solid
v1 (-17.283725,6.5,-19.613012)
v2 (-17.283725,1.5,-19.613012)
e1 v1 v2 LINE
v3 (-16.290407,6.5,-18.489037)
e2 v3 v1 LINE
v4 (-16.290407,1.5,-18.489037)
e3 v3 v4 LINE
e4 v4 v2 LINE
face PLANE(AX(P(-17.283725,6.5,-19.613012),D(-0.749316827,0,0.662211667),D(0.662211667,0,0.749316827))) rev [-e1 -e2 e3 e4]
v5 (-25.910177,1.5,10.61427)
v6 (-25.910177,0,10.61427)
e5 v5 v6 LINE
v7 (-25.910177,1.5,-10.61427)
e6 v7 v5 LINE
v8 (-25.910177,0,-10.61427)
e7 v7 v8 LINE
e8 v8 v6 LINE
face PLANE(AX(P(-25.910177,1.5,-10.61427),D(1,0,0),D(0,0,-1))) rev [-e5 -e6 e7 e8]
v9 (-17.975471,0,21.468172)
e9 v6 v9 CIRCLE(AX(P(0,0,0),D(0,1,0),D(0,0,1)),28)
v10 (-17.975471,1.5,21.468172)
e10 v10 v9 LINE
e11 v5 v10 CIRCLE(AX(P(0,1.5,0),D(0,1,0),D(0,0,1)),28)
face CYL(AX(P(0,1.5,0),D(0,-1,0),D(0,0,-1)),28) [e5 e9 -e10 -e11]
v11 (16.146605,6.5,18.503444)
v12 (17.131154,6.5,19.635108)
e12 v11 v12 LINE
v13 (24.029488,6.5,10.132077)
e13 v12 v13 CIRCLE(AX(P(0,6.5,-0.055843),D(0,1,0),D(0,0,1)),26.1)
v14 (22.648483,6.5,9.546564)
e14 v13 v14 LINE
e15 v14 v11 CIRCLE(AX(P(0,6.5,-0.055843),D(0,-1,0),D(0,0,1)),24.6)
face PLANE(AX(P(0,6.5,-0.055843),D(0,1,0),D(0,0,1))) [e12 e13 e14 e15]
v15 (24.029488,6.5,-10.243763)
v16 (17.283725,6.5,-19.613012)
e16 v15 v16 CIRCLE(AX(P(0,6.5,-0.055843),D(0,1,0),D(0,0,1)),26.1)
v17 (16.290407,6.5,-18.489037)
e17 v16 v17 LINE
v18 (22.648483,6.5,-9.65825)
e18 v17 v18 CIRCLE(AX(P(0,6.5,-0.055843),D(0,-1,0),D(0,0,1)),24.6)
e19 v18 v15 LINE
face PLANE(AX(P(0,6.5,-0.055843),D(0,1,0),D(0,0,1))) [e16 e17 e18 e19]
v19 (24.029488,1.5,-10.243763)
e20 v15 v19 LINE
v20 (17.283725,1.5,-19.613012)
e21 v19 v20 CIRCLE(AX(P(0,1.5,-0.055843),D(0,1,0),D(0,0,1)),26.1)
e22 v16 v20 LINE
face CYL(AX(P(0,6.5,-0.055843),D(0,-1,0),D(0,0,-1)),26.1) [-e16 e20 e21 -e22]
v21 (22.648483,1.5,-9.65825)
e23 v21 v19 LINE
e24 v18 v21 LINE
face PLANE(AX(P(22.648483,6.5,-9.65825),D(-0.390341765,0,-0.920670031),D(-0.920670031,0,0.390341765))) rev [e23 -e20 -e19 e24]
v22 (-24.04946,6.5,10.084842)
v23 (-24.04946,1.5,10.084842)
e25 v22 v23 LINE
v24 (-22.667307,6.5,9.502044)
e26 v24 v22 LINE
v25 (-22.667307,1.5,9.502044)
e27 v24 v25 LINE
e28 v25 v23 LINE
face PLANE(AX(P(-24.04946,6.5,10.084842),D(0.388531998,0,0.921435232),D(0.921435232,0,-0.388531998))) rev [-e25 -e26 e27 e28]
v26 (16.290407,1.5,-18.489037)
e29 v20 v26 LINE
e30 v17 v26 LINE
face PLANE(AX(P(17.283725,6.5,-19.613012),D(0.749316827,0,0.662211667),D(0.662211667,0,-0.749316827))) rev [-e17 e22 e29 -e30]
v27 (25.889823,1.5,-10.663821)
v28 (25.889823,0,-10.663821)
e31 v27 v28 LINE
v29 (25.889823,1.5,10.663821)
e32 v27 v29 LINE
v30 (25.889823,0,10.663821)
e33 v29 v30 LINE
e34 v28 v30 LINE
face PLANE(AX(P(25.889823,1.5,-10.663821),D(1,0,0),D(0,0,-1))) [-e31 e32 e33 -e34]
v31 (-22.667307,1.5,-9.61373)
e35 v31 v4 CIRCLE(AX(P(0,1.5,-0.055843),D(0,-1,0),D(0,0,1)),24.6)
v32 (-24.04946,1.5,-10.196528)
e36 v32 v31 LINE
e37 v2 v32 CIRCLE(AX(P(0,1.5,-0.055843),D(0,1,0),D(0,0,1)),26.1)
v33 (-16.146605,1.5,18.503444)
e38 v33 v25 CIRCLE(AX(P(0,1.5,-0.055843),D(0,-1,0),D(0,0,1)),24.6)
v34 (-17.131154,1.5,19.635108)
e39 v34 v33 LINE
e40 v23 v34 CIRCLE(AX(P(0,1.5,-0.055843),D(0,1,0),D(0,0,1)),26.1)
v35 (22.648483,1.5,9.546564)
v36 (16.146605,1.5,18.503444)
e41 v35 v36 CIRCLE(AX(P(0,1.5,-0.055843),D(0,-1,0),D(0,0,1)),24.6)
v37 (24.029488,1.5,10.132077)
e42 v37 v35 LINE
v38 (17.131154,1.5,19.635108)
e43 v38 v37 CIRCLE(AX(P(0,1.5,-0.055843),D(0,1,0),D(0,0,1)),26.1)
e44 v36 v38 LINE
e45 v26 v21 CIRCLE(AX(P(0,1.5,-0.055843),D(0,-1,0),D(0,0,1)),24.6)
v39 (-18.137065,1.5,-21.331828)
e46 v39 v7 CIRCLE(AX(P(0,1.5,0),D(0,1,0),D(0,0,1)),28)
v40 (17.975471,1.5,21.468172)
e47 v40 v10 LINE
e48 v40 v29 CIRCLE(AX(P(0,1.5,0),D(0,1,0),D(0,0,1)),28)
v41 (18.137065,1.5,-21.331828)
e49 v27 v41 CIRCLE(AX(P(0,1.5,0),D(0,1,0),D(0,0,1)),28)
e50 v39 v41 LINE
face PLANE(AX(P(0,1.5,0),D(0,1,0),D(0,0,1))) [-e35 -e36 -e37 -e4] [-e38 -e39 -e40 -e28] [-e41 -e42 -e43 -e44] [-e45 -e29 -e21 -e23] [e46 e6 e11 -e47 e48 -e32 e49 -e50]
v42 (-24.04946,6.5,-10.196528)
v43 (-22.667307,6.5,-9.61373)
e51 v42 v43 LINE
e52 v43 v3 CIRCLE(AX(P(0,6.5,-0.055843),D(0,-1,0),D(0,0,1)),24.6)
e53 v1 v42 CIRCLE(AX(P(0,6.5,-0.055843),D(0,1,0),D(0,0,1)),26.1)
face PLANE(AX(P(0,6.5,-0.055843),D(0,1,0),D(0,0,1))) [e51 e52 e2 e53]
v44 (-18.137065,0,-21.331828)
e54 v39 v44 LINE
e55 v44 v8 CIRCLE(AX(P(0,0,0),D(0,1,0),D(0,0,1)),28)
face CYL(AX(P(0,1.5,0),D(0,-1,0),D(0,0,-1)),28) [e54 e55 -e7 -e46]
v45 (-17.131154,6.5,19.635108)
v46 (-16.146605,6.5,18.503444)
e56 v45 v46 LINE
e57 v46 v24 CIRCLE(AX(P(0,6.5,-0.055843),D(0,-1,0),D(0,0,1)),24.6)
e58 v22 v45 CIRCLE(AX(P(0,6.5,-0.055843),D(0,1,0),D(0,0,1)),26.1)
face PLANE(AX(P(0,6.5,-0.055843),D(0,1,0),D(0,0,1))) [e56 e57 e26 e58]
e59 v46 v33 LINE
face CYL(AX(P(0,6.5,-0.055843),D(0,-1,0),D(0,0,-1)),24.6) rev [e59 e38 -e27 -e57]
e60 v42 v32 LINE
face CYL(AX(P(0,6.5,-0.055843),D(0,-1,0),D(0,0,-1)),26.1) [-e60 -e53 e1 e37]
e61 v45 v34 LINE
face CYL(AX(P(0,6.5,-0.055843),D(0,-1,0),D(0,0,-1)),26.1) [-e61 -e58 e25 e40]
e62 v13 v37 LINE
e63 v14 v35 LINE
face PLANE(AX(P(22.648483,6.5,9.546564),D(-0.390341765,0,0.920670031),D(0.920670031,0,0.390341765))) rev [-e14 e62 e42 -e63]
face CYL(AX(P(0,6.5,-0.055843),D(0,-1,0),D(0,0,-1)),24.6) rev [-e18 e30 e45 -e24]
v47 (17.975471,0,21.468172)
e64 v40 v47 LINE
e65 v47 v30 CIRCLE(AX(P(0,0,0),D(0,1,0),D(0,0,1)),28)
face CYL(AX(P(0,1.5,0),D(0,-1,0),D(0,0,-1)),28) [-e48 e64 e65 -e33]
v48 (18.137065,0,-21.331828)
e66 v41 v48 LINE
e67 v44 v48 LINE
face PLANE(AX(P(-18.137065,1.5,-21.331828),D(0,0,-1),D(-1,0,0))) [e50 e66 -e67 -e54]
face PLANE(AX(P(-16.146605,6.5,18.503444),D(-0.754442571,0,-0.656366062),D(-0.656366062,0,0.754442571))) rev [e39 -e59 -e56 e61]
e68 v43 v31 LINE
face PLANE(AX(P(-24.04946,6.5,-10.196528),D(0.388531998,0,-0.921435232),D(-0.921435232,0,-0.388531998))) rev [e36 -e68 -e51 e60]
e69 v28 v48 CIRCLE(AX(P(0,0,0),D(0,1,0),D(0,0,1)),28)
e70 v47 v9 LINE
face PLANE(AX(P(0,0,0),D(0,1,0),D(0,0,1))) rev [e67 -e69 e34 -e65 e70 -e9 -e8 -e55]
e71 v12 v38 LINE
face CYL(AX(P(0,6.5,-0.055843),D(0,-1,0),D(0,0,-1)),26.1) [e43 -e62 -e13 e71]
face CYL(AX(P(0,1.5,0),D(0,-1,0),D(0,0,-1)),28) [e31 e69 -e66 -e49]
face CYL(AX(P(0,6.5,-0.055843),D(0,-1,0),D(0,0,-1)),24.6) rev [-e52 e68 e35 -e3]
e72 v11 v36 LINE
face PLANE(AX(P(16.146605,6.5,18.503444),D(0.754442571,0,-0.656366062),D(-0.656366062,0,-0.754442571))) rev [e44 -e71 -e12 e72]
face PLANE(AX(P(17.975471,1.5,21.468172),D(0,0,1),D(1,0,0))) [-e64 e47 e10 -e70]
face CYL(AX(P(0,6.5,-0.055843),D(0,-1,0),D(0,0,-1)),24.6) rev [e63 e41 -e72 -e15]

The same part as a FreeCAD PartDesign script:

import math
import FreeCAD as App
import Part
import Sketcher
from FreeCAD import Vector

doc = App.newDocument("Part")
params = doc.addObject("Spreadsheet::Sheet", "Params")
for row, (alias, value) in enumerate([
    ("sketch1_radius", "28 mm"),
    ("pad1_length", "1.5 mm"),
    ("sketch2_radius", "26.1 mm"),
    ("sketch2_radius2", "24.6 mm"),
    ("pad2_length", "5 mm"),
], start=1):
    params.set(f"A{row}", alias)
    params.set(f"B{row}", "=" + value)
    params.setAlias(f"B{row}", alias)

body = doc.addObject("PartDesign::Body", "Body")

# Sketch on XZ plane
sketch1 = body.newObject("Sketcher::SketchObject", "Sketch")
sketch1.AttachmentSupport = (doc.getObject("XZ_Plane"), [""])
sketch1.MapMode = "FlatFace"
sketch1.addGeometry(Part.LineSegment(Vector(-25.910177, -10.61427, 0), Vector(-25.910177, 10.61427, 0)), False)
sketch1.addGeometry(Part.ArcOfCircle(Part.Circle(Vector(0, 0, 0), Vector(0, 0, 1), 28), math.radians(129.939706), math.radians(157.723227)), False)
sketch1.addGeometry(Part.LineSegment(Vector(-17.975471, 21.468172, 0), Vector(17.975471, 21.468172, 0)), False)
sketch1.addGeometry(Part.ArcOfCircle(Part.Circle(Vector(0, 0, 0), Vector(0, 0, 1), 28), math.radians(22.38639), math.radians(50.060294)), False)
sketch1.addGeometry(Part.LineSegment(Vector(25.889823, 10.663821, 0), Vector(25.889823, -10.663821, 0)), False)
sketch1.addGeometry(Part.ArcOfCircle(Part.Circle(Vector(0, 0, 0), Vector(0, 0, 1), 28), math.radians(-49.62765), math.radians(-22.38639)), False)
sketch1.addGeometry(Part.LineSegment(Vector(18.137065, -21.331828, 0), Vector(-18.137065, -21.331828, 0)), False)
sketch1.addGeometry(Part.ArcOfCircle(Part.Circle(Vector(0, 0, 0), Vector(0, 0, 1), 28), math.radians(-157.723227), math.radians(-130.37235)), False)
sketch1.addConstraint(Sketcher.Constraint("Coincident", 0, 2, 1, 2))
sketch1.addConstraint(Sketcher.Constraint("Coincident", 1, 1, 2, 1))
sketch1.addConstraint(Sketcher.Constraint("Coincident", 2, 2, 3, 2))
sketch1.addConstraint(Sketcher.Constraint("Coincident", 3, 1, 4, 1))
sketch1.addConstraint(Sketcher.Constraint("Coincident", 4, 2, 5, 2))
sketch1.addConstraint(Sketcher.Constraint("Coincident", 5, 1, 6, 1))
sketch1.addConstraint(Sketcher.Constraint("Coincident", 6, 2, 7, 2))
sketch1.addConstraint(Sketcher.Constraint("Coincident", 7, 1, 0, 1))
sketch1.addConstraint(Sketcher.Constraint("Vertical", 0))
sketch1.addConstraint(Sketcher.Constraint("Horizontal", 2))
sketch1.addConstraint(Sketcher.Constraint("Vertical", 4))
sketch1.addConstraint(Sketcher.Constraint("Horizontal", 6))
sketch1.addConstraint(Sketcher.Constraint("Coincident", 1, 3, -1, 1))
sketch1.addConstraint(Sketcher.Constraint("Coincident", 3, 3, -1, 1))
sketch1.addConstraint(Sketcher.Constraint("Coincident", 5, 3, -1, 1))
sketch1.addConstraint(Sketcher.Constraint("Coincident", 7, 3, -1, 1))
sketch1.addConstraint(Sketcher.Constraint("Equal", 1, 3))
sketch1.addConstraint(Sketcher.Constraint("Equal", 3, 5))
sketch1.addConstraint(Sketcher.Constraint("Equal", 5, 7))
sketch1.addConstraint(Sketcher.Constraint("Radius", 1, 28.0))
sketch1.addConstraint(Sketcher.Constraint("DistanceX", 6, 2, 6, 1, 36.27413))
sketch1.addConstraint(Sketcher.Constraint("DistanceY", 0, 1, 0, 2, 21.228539))
sketch1.addConstraint(Sketcher.Constraint("DistanceY", 4, 2, 4, 1, 21.327642))
sketch1.addConstraint(Sketcher.Constraint("DistanceX", 2, 1, 2, 2, 35.950943))
sketch1.setExpression("Constraints[19]", "Params.sketch1_radius")
pad1 = body.newObject("PartDesign::Pad", "Pad")
pad1.Profile = sketch1
pad1.setExpression("Length", "Params.pad1_length")
pad1.Reversed = True

# Sketch on XZ plane
sketch2 = body.newObject("Sketcher::SketchObject", "Sketch001")
sketch2.AttachmentSupport = (doc.getObject("XZ_Plane"), [""])
sketch2.MapMode = "FlatFace"
sketch2.AttachmentOffset = App.Placement(Vector(0, 0, -1.5), App.Rotation())
sketch2.addGeometry(Part.LineSegment(Vector(-16.290407, -18.489037, 0), Vector(-17.283725, -19.613012, 0)), False)
sketch2.addGeometry(Part.ArcOfCircle(Part.Circle(Vector(0, -0.055843, 0), Vector(0, 0, 1), 26.1), math.radians(-157.136813), math.radians(-131.468766)), False)
sketch2.addGeometry(Part.LineSegment(Vector(-24.04946, -10.196528, 0), Vector(-22.667307, -9.61373, 0)), False)
sketch2.addGeometry(Part.ArcOfCircle(Part.Circle(Vector(0, -0.055843, 0), Vector(0, 0, 1), 24.6), math.radians(-157.136813), math.radians(-131.468766)), False)
sketch2.addGeometry(Part.LineSegment(Vector(17.283725, -19.613012, 0), Vector(16.290407, -18.489037, 0)), False)
sketch2.addGeometry(Part.ArcOfCircle(Part.Circle(Vector(0, -0.055843, 0), Vector(0, 0, 1), 24.6), math.radians(-48.531234), math.radians(-22.975767)), False)
sketch2.addGeometry(Part.LineSegment(Vector(22.648483, -9.65825, 0), Vector(24.029488, -10.243763, 0)), False)
sketch2.addGeometry(Part.ArcOfCircle(Part.Circle(Vector(0, -0.055843, 0), Vector(0, 0, 1), 26.1), math.radians(-48.531234), math.radians(-22.975767)), False)
sketch2.addGeometry(Part.LineSegment(Vector(24.029488, 10.132077, 0), Vector(22.648483, 9.546564, 0)), False)
sketch2.addGeometry(Part.ArcOfCircle(Part.Circle(Vector(0, -0.055843, 0), Vector(0, 0, 1), 24.6), math.radians(22.975767), math.radians(48.976687)), False)
sketch2.addGeometry(Part.LineSegment(Vector(16.146605, 18.503444, 0), Vector(17.131154, 19.635108, 0)), False)
sketch2.addGeometry(Part.ArcOfCircle(Part.Circle(Vector(0, -0.055843, 0), Vector(0, 0, 1), 26.1), math.radians(22.975767), math.radians(48.976687)), False)
sketch2.addGeometry(Part.LineSegment(Vector(-22.667307, 9.502044, 0), Vector(-24.04946, 10.084842, 0)), False)
sketch2.addGeometry(Part.ArcOfCircle(Part.Circle(Vector(0, -0.055843, 0), Vector(0, 0, 1), 26.1), math.radians(131.023313), math.radians(157.136813)), False)
sketch2.addGeometry(Part.LineSegment(Vector(-17.131154, 19.635108, 0), Vector(-16.146605, 18.503444, 0)), False)
sketch2.addGeometry(Part.ArcOfCircle(Part.Circle(Vector(0, -0.055843, 0), Vector(0, 0, 1), 24.6), math.radians(131.023313), math.radians(157.136813)), False)
sketch2.addConstraint(Sketcher.Constraint("Coincident", 0, 2, 1, 2))
sketch2.addConstraint(Sketcher.Constraint("Coincident", 1, 1, 2, 1))
sketch2.addConstraint(Sketcher.Constraint("Coincident", 2, 2, 3, 1))
sketch2.addConstraint(Sketcher.Constraint("Coincident", 3, 2, 0, 1))
sketch2.addConstraint(Sketcher.Constraint("Coincident", 4, 2, 5, 1))
sketch2.addConstraint(Sketcher.Constraint("Coincident", 5, 2, 6, 1))
sketch2.addConstraint(Sketcher.Constraint("Coincident", 6, 2, 7, 2))
sketch2.addConstraint(Sketcher.Constraint("Coincident", 7, 1, 4, 1))
sketch2.addConstraint(Sketcher.Constraint("Coincident", 8, 2, 9, 1))
sketch2.addConstraint(Sketcher.Constraint("Coincident", 9, 2, 10, 1))
sketch2.addConstraint(Sketcher.Constraint("Coincident", 10, 2, 11, 2))
sketch2.addConstraint(Sketcher.Constraint("Coincident", 11, 1, 8, 1))
sketch2.addConstraint(Sketcher.Constraint("Coincident", 12, 2, 13, 2))
sketch2.addConstraint(Sketcher.Constraint("Coincident", 13, 1, 14, 1))
sketch2.addConstraint(Sketcher.Constraint("Coincident", 14, 2, 15, 1))
sketch2.addConstraint(Sketcher.Constraint("Coincident", 15, 2, 12, 1))
sketch2.addConstraint(Sketcher.Constraint("Coincident", 3, 3, 1, 3))
sketch2.addConstraint(Sketcher.Constraint("Coincident", 5, 3, 1, 3))
sketch2.addConstraint(Sketcher.Constraint("Coincident", 7, 3, 1, 3))
sketch2.addConstraint(Sketcher.Constraint("Coincident", 9, 3, 1, 3))
sketch2.addConstraint(Sketcher.Constraint("Coincident", 11, 3, 1, 3))
sketch2.addConstraint(Sketcher.Constraint("Coincident", 13, 3, 1, 3))
sketch2.addConstraint(Sketcher.Constraint("Coincident", 15, 3, 1, 3))
sketch2.addConstraint(Sketcher.Constraint("Equal", 3, 5))
sketch2.addConstraint(Sketcher.Constraint("Equal", 1, 7))
sketch2.addConstraint(Sketcher.Constraint("Equal", 5, 9))
sketch2.addConstraint(Sketcher.Constraint("Equal", 7, 11))
sketch2.addConstraint(Sketcher.Constraint("Equal", 11, 13))
sketch2.addConstraint(Sketcher.Constraint("Equal", 9, 15))
sketch2.addConstraint(Sketcher.Constraint("Symmetric", 3, 2, 4, 2, -2))
sketch2.addConstraint(Sketcher.Constraint("Horizontal", 0, 2, 7, 1))
sketch2.addConstraint(Sketcher.Constraint("Horizontal", 10, 2, 13, 1))
sketch2.addConstraint(Sketcher.Constraint("Horizontal", 9, 2, 14, 2))
sketch2.addConstraint(Sketcher.Constraint("Vertical", 5, 2, 8, 2))
sketch2.addConstraint(Sketcher.Constraint("Vertical", 6, 2, 11, 1))
sketch2.addConstraint(Sketcher.Constraint("Vertical", 1, 1, 12, 2))
sketch2.addConstraint(Sketcher.Constraint("Vertical", 2, 2, 15, 2))
sketch2.addConstraint(Sketcher.Constraint("Radius", 1, 26.1))
sketch2.addConstraint(Sketcher.Constraint("Radius", 3, 24.6))
sketch2.addConstraint(Sketcher.Constraint("DistanceX", 2, 2, 3, 2, 6.3769))
sketch2.addConstraint(Sketcher.Constraint("DistanceX", 15, 2, 14, 2, 6.520702))
sketch2.addConstraint(Sketcher.Constraint("DistanceY", 15, 2, 14, 2, 9.0014))
sketch2.addConstraint(Sketcher.Constraint("DistanceX", 1, 1, -1, 1, 24.04946))
sketch2.addConstraint(Sketcher.Constraint("DistanceY", 1, 1, -1, 1, 10.196528))
sketch2.addConstraint(Sketcher.Constraint("DistanceY", 5, 2, -1, 1, 9.65825))
sketch2.addConstraint(Sketcher.Constraint("DistanceY", -1, 1, 10, 2, 19.635108))
sketch2.addConstraint(Sketcher.Constraint("DistanceY", 0, 2, 13, 3, 19.557169))
sketch2.addConstraint(Sketcher.Constraint("DistanceX", 4, 2, 6, 2, 7.739081))
sketch2.setExpression("Constraints[37]", "Params.sketch2_radius")
sketch2.setExpression("Constraints[38]", "Params.sketch2_radius2")
pad2 = body.newObject("PartDesign::Pad", "Pad001")
pad2.Profile = sketch2
pad2.setExpression("Length", "Params.pad2_length")
pad2.Reversed = True

doc.recompute()
